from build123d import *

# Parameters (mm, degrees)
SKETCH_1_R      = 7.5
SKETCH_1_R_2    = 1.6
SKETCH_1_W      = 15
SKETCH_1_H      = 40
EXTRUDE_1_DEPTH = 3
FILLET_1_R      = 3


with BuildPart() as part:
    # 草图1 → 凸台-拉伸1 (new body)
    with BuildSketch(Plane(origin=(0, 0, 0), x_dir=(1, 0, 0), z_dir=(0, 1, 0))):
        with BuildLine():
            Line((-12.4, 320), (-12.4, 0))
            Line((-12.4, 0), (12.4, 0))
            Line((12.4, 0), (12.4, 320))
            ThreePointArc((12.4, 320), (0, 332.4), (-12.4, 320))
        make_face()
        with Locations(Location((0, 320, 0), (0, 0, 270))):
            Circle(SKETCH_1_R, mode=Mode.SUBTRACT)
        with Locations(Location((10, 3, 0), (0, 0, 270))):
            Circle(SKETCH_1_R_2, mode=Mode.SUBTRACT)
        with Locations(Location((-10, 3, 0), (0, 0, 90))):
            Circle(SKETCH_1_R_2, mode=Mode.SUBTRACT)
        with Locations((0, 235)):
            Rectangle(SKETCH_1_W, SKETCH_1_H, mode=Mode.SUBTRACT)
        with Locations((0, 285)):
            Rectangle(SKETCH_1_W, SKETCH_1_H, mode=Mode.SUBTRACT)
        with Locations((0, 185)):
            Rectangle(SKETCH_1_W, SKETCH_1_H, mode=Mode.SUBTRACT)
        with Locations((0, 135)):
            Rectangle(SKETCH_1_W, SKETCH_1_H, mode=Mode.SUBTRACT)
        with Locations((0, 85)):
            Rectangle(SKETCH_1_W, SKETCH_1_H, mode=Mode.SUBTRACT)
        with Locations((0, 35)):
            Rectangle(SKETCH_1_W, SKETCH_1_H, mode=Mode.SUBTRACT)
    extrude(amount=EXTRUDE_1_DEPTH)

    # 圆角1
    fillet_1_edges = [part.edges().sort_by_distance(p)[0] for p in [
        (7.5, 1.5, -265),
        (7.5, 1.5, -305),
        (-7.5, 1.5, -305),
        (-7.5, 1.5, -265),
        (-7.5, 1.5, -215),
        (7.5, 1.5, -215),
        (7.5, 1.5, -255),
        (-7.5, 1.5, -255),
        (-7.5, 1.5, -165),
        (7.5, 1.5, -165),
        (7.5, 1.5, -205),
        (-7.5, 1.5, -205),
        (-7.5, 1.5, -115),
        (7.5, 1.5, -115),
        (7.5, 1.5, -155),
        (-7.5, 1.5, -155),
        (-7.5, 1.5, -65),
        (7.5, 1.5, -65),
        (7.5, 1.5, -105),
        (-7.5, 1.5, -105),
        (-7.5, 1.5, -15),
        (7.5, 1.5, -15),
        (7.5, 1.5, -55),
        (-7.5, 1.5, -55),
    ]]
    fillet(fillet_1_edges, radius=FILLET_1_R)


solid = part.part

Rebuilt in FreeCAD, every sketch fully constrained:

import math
import FreeCAD as App
import Part
import Sketcher
from FreeCAD import Vector


def edges_at(feature, points):
    """Names of the edges that pass closest to the given points."""
    edges = feature.Shape.Edges
    near = lambda p: min(range(len(edges)), key=lambda i: edges[i].distToShape(Part.Vertex(*p))[0])
    return sorted({f"Edge{near(p) + 1}" for p in points})

doc = App.newDocument("Part")
params = doc.addObject("Spreadsheet::Sheet", "Params")
for row, (alias, value) in enumerate([
    ("sketch1_diameter", "15 mm"),
    ("sketch1_diameter2", "3.2 mm"),
    ("sketch1_radius", "12.4 mm"),
    ("sketch1_width", "15 mm"),
    ("sketch1_height", "320 mm"),
    ("pad1_length", "3 mm"),
    ("fillet_radius", "3 mm"),
], start=1):
    params.set(f"A{row}", alias)
    params.set(f"B{row}", "=" + value)
    params.setAlias(f"B{row}", alias)

body = doc.addObject("PartDesign::Body", "Body")

# Sketch on XZ plane
sketch1 = body.newObject("Sketcher::SketchObject", "Sketch")
sketch1.AttachmentSupport = (doc.getObject("XZ_Plane"), [""])
sketch1.MapMode = "FlatFace"
sketch1.addGeometry(Part.LineSegment(Vector(-12.4, -320, 0), Vector(-12.4, 0, 0)), False)
sketch1.addGeometry(Part.LineSegment(Vector(-12.4, 0, 0), Vector(12.4, 0, 0)), False)
sketch1.addGeometry(Part.LineSegment(Vector(12.4, 0, 0), Vector(12.4, -320, 0)), False)
sketch1.addGeometry(Part.ArcOfCircle(Part.Circle(Vector(0, -320, 0), Vector(0, 0, 1), 12.4), math.radians(180), math.radians(360)), False)
sketch1.addGeometry(Part.Circle(Vector(-10, -3, 0), Vector(0, 0, 1), 1.6), False)
sketch1.addGeometry(Part.LineSegment(Vector(7.5, -15, 0), Vector(-7.5, -15, 0)), False)
sketch1.addGeometry(Part.LineSegment(Vector(-7.5, -15, 0), Vector(-7.5, -55, 0)), False)
sketch1.addGeometry(Part.LineSegment(Vector(-7.5, -55, 0), Vector(7.5, -55, 0)), False)
sketch1.addGeometry(Part.LineSegment(Vector(7.5, -55, 0), Vector(7.5, -15, 0)), False)
sketch1.addGeometry(Part.Circle(Vector(10, -3, 0), Vector(0, 0, 1), 1.6), False)
sketch1.addGeometry(Part.LineSegment(Vector(7.5, -65, 0), Vector(-7.5, -65, 0)), False)
sketch1.addGeometry(Part.LineSegment(Vector(-7.5, -65, 0), Vector(-7.5, -105, 0)), False)
sketch1.addGeometry(Part.LineSegment(Vector(-7.5, -105, 0), Vector(7.5, -105, 0)), False)
sketch1.addGeometry(Part.LineSegment(Vector(7.5, -105, 0), Vector(7.5, -65, 0)), False)
sketch1.addGeometry(Part.LineSegment(Vector(7.5, -115, 0), Vector(-7.5, -115, 0)), False)
sketch1.addGeometry(Part.LineSegment(Vector(-7.5, -115, 0), Vector(-7.5, -155, 0)), False)
sketch1.addGeometry(Part.LineSegment(Vector(-7.5, -155, 0), Vector(7.5, -155, 0)), False)
sketch1.addGeometry(Part.LineSegment(Vector(7.5, -155, 0), Vector(7.5, -115, 0)), False)
sketch1.addGeometry(Part.LineSegment(Vector(7.5, -165, 0), Vector(-7.5, -165, 0)), False)
sketch1.addGeometry(Part.LineSegment(Vector(-7.5, -165, 0), Vector(-7.5, -205, 0)), False)
sketch1.addGeometry(Part.LineSegment(Vector(-7.5, -205, 0), Vector(7.5, -205, 0)), False)
sketch1.addGeometry(Part.LineSegment(Vector(7.5, -205, 0), Vector(7.5, -165, 0)), False)
sketch1.addGeometry(Part.LineSegment(Vector(7.5, -215, 0), Vector(-7.5, -215, 0)), False)
sketch1.addGeometry(Part.LineSegment(Vector(-7.5, -215, 0), Vector(-7.5, -255, 0)), False)
sketch1.addGeometry(Part.LineSegment(Vector(-7.5, -255, 0), Vector(7.5, -255, 0)), False)
sketch1.addGeometry(Part.LineSegment(Vector(7.5, -255, 0), Vector(7.5, -215, 0)), False)
sketch1.addGeometry(Part.LineSegment(Vector(7.5, -265, 0), Vector(-7.5, -265, 0)), False)
sketch1.addGeometry(Part.LineSegment(Vector(-7.5, -265, 0), Vector(-7.5, -305, 0)), False)
sketch1.addGeometry(Part.LineSegment(Vector(-7.5, -305, 0), Vector(7.5, -305, 0)), False)
sketch1.addGeometry(Part.LineSegment(Vector(7.5, -305, 0), Vector(7.5, -265, 0)), False)
sketch1.addGeometry(Part.Circle(Vector(0, -320, 0), Vector(0, 0, 1), 7.5), False)
sketch1.addConstraint(Sketcher.Constraint("Coincident", 0, 2, 1, 1))
sketch1.addConstraint(Sketcher.Constraint("Coincident", 1, 2, 2, 1))
sketch1.addConstraint(Sketcher.Constraint("Tangent", 2, 2, 3, 2))
sketch1.addConstraint(Sketcher.Constraint("Tangent", 3, 1, 0, 1))
sketch1.addConstraint(Sketcher.Constraint("Coincident", 5, 2, 6, 1))
sketch1.addConstraint(Sketcher.Constraint("Coincident", 6, 2, 7, 1))
sketch1.addConstraint(Sketcher.Constraint("Coincident", 7, 2, 8, 1))
sketch1.addConstraint(Sketcher.Constraint("Coincident", 8, 2, 5, 1))
sketch1.addConstraint(Sketcher.Constraint("Coincident", 10, 2, 11, 1))
sketch1.addConstraint(Sketcher.Constraint("Coincident", 11, 2, 12, 1))
sketch1.addConstraint(Sketcher.Constraint("Coincident", 12, 2, 13, 1))
sketch1.addConstraint(Sketcher.Constraint("Coincident", 13, 2, 10, 1))
sketch1.addConstraint(Sketcher.Constraint("Coincident", 14, 2, 15, 1))
sketch1.addConstraint(Sketcher.Constraint("Coincident", 15, 2, 16, 1))
sketch1.addConstraint(Sketcher.Constraint("Coincident", 16, 2, 17, 1))
sketch1.addConstraint(Sketcher.Constraint("Coincident", 17, 2, 14, 1))
sketch1.addConstraint(Sketcher.Constraint("Coincident", 18, 2, 19, 1))
sketch1.addConstraint(Sketcher.Constraint("Coincident", 19, 2, 20, 1))
sketch1.addConstraint(Sketcher.Constraint("Coincident", 20, 2, 21, 1))
sketch1.addConstraint(Sketcher.Constraint("Coincident", 21, 2, 18, 1))
sketch1.addConstraint(Sketcher.Constraint("Coincident", 22, 2, 23, 1))
sketch1.addConstraint(Sketcher.Constraint("Coincident", 23, 2, 24, 1))
sketch1.addConstraint(Sketcher.Constraint("Coincident", 24, 2, 25, 1))
sketch1.addConstraint(Sketcher.Constraint("Coincident", 25, 2, 22, 1))
sketch1.addConstraint(Sketcher.Constraint("Coincident", 26, 2, 27, 1))
sketch1.addConstraint(Sketcher.Constraint("Coincident", 27, 2, 28, 1))
sketch1.addConstraint(Sketcher.Constraint("Coincident", 28, 2, 29, 1))
sketch1.addConstraint(Sketcher.Constraint("Coincident", 29, 2, 26, 1))
sketch1.addConstraint(Sketcher.Constraint("Vertical", 0))
sketch1.addConstraint(Sketcher.Constraint("Horizontal", 1))
sketch1.addConstraint(Sketcher.Constraint("Vertical", 2))
sketch1.addConstraint(Sketcher.Constraint("Horizontal", 5))
sketch1.addConstraint(Sketcher.Constraint("Vertical", 6))
sketch1.addConstraint(Sketcher.Constraint("Horizontal", 7))
sketch1.addConstraint(Sketcher.Constraint("Vertical", 8))
sketch1.addConstraint(Sketcher.Constraint("Horizontal", 10))
sketch1.addConstraint(Sketcher.Constraint("Vertical", 11))
sketch1.addConstraint(Sketcher.Constraint("Horizontal", 12))
sketch1.addConstraint(Sketcher.Constraint("Vertical", 13))
sketch1.addConstraint(Sketcher.Constraint("Horizontal", 14))
sketch1.addConstraint(Sketcher.Constraint("Vertical", 15))
sketch1.addConstraint(Sketcher.Constraint("Horizontal", 16))
sketch1.addConstraint(Sketcher.Constraint("Vertical", 17))
sketch1.addConstraint(Sketcher.Constraint("Horizontal", 18))
sketch1.addConstraint(Sketcher.Constraint("Vertical", 19))
sketch1.addConstraint(Sketcher.Constraint("Horizontal", 20))
sketch1.addConstraint(Sketcher.Constraint("Vertical", 21))
sketch1.addConstraint(Sketcher.Constraint("Horizontal", 22))
sketch1.addConstraint(Sketcher.Constraint("Vertical", 23))
sketch1.addConstraint(Sketcher.Constraint("Horizontal", 24))
sketch1.addConstraint(Sketcher.Constraint("Vertical", 25))
sketch1.addConstraint(Sketcher.Constraint("Horizontal", 26))
sketch1.addConstraint(Sketcher.Constraint("Vertical", 27))
sketch1.addConstraint(Sketcher.Constraint("Horizontal", 28))
sketch1.addConstraint(Sketcher.Constraint("Vertical", 29))
sketch1.addConstraint(Sketcher.Constraint("Coincident", 30, 3, 3, 3))
sketch1.addConstraint(Sketcher.Constraint("Equal", 4, 9))
sketch1.addConstraint(Sketcher.Constraint("Symmetric", 0, 2, 1, 2, -1, 1))
sketch1.addConstraint(Sketcher.Constraint("Symmetric", 4, 3, 9, 3, -2))
sketch1.addConstraint(Sketcher.Constraint("Vertical", 6, 2, 10, 2))
sketch1.addConstraint(Sketcher.Constraint("Vertical", 8, 2, 12, 2))
sketch1.addConstraint(Sketcher.Constraint("Vertical", 11, 2, 14, 2))
sketch1.addConstraint(Sketcher.Constraint("Vertical", 13, 2, 16, 2))
sketch1.addConstraint(Sketcher.Constraint("Vertical", 15, 2, 18, 2))
sketch1.addConstraint(Sketcher.Constraint("Vertical", 17, 2, 20, 2))
sketch1.addConstraint(Sketcher.Constraint("Vertical", 19, 2, 22, 2))
sketch1.addConstraint(Sketcher.Constraint("Vertical", 21, 2, 24, 2))
sketch1.addConstraint(Sketcher.Constraint("Vertical", 23, 2, 26, 2))
sketch1.addConstraint(Sketcher.Constraint("Vertical", 25, 2, 28, 2))
sketch1.addConstraint(Sketcher.Constraint("Equal", 8, 11))
sketch1.addConstraint(Sketcher.Constraint("Equal", 13, 15))
sketch1.addConstraint(Sketcher.Constraint("Equal", 17, 19))
sketch1.addConstraint(Sketcher.Constraint("Equal", 21, 23))
sketch1.addConstraint(Sketcher.Constraint("Equal", 25, 27))
sketch1.addConstraint(Sketcher.Constraint("Diameter", 30, 15.0))
sketch1.addConstraint(Sketcher.Constraint("Diameter", 4, 3.2))
sketch1.addConstraint(Sketcher.Constraint("Radius", 3, 12.4))
sketch1.addConstraint(Sketcher.Constraint("DistanceX", 5, 2, 5, 1, 15.0))
sketch1.addConstraint(Sketcher.Constraint("DistanceY", 0, 1, 0, 2, 320.0))
sketch1.addConstraint(Sketcher.Constraint("DistanceY", 6, 2, 6, 1, 40.0))
sketch1.addConstraint(Sketcher.Constraint("DistanceX", 4, 3, -1, 1, 10.0))
sketch1.addConstraint(Sketcher.Constraint("DistanceY", 4, 3, -1, 1, 3.0))
sketch1.addConstraint(Sketcher.Constraint("DistanceY", 5, 2, -1, 1, 15.0))
sketch1.addConstraint(Sketcher.Constraint("DistanceY", 10, 2, -1, 1, 65.0))
sketch1.addConstraint(Sketcher.Constraint("DistanceY", 14, 2, -1, 1, 115.0))
sketch1.addConstraint(Sketcher.Constraint("DistanceY", 18, 2, -1, 1, 165.0))
sketch1.addConstraint(Sketcher.Constraint("DistanceY", 22, 2, -1, 1, 215.0))
sketch1.addConstraint(Sketcher.Constraint("DistanceY", 26, 2, -1, 1, 265.0))
sketch1.addConstraint(Sketcher.Constraint("DistanceX", 5, 2, -1, 1, 7.5))
sketch1.setExpression("Constraints[74]", "Params.sketch1_diameter")
sketch1.setExpression("Constraints[75]", "Params.sketch1_diameter2")
sketch1.setExpression("Constraints[76]", "Params.sketch1_radius")
sketch1.setExpression("Constraints[77]", "Params.sketch1_width")
sketch1.setExpression("Constraints[78]", "Params.sketch1_height")
pad1 = body.newObject("PartDesign::Pad", "Pad")
pad1.Profile = sketch1
pad1.setExpression("Length", "Params.pad1_length")
pad1.Reversed = True
doc.recompute()

fillet = body.newObject("PartDesign::Fillet", "Fillet")
fillet.Base = (pad1, edges_at(pad1, [
    (7.5, 1.5, -265),
    (7.5, 1.5, -305),
    (-7.5, 1.5, -305),
    (-7.5, 1.5, -265),
    (-7.5, 1.5, -215),
    (7.5, 1.5, -215),
    (7.5, 1.5, -255),
    (-7.5, 1.5, -255),
    (-7.5, 1.5, -165),
    (7.5, 1.5, -165),
    (7.5, 1.5, -205),
    (-7.5, 1.5, -205),
    (-7.5, 1.5, -115),
    (7.5, 1.5, -115),
    (7.5, 1.5, -155),
    (-7.5, 1.5, -155),
    (-7.5, 1.5, -65),
    (7.5, 1.5, -65),
    (7.5, 1.5, -105),
    (-7.5, 1.5, -105),
    (-7.5, 1.5, -15),
    (7.5, 1.5, -15),
    (7.5, 1.5, -55),
    (-7.5, 1.5, -55),
]))
fillet.setExpression("Radius", "Params.fillet_radius")

doc.recompute()
